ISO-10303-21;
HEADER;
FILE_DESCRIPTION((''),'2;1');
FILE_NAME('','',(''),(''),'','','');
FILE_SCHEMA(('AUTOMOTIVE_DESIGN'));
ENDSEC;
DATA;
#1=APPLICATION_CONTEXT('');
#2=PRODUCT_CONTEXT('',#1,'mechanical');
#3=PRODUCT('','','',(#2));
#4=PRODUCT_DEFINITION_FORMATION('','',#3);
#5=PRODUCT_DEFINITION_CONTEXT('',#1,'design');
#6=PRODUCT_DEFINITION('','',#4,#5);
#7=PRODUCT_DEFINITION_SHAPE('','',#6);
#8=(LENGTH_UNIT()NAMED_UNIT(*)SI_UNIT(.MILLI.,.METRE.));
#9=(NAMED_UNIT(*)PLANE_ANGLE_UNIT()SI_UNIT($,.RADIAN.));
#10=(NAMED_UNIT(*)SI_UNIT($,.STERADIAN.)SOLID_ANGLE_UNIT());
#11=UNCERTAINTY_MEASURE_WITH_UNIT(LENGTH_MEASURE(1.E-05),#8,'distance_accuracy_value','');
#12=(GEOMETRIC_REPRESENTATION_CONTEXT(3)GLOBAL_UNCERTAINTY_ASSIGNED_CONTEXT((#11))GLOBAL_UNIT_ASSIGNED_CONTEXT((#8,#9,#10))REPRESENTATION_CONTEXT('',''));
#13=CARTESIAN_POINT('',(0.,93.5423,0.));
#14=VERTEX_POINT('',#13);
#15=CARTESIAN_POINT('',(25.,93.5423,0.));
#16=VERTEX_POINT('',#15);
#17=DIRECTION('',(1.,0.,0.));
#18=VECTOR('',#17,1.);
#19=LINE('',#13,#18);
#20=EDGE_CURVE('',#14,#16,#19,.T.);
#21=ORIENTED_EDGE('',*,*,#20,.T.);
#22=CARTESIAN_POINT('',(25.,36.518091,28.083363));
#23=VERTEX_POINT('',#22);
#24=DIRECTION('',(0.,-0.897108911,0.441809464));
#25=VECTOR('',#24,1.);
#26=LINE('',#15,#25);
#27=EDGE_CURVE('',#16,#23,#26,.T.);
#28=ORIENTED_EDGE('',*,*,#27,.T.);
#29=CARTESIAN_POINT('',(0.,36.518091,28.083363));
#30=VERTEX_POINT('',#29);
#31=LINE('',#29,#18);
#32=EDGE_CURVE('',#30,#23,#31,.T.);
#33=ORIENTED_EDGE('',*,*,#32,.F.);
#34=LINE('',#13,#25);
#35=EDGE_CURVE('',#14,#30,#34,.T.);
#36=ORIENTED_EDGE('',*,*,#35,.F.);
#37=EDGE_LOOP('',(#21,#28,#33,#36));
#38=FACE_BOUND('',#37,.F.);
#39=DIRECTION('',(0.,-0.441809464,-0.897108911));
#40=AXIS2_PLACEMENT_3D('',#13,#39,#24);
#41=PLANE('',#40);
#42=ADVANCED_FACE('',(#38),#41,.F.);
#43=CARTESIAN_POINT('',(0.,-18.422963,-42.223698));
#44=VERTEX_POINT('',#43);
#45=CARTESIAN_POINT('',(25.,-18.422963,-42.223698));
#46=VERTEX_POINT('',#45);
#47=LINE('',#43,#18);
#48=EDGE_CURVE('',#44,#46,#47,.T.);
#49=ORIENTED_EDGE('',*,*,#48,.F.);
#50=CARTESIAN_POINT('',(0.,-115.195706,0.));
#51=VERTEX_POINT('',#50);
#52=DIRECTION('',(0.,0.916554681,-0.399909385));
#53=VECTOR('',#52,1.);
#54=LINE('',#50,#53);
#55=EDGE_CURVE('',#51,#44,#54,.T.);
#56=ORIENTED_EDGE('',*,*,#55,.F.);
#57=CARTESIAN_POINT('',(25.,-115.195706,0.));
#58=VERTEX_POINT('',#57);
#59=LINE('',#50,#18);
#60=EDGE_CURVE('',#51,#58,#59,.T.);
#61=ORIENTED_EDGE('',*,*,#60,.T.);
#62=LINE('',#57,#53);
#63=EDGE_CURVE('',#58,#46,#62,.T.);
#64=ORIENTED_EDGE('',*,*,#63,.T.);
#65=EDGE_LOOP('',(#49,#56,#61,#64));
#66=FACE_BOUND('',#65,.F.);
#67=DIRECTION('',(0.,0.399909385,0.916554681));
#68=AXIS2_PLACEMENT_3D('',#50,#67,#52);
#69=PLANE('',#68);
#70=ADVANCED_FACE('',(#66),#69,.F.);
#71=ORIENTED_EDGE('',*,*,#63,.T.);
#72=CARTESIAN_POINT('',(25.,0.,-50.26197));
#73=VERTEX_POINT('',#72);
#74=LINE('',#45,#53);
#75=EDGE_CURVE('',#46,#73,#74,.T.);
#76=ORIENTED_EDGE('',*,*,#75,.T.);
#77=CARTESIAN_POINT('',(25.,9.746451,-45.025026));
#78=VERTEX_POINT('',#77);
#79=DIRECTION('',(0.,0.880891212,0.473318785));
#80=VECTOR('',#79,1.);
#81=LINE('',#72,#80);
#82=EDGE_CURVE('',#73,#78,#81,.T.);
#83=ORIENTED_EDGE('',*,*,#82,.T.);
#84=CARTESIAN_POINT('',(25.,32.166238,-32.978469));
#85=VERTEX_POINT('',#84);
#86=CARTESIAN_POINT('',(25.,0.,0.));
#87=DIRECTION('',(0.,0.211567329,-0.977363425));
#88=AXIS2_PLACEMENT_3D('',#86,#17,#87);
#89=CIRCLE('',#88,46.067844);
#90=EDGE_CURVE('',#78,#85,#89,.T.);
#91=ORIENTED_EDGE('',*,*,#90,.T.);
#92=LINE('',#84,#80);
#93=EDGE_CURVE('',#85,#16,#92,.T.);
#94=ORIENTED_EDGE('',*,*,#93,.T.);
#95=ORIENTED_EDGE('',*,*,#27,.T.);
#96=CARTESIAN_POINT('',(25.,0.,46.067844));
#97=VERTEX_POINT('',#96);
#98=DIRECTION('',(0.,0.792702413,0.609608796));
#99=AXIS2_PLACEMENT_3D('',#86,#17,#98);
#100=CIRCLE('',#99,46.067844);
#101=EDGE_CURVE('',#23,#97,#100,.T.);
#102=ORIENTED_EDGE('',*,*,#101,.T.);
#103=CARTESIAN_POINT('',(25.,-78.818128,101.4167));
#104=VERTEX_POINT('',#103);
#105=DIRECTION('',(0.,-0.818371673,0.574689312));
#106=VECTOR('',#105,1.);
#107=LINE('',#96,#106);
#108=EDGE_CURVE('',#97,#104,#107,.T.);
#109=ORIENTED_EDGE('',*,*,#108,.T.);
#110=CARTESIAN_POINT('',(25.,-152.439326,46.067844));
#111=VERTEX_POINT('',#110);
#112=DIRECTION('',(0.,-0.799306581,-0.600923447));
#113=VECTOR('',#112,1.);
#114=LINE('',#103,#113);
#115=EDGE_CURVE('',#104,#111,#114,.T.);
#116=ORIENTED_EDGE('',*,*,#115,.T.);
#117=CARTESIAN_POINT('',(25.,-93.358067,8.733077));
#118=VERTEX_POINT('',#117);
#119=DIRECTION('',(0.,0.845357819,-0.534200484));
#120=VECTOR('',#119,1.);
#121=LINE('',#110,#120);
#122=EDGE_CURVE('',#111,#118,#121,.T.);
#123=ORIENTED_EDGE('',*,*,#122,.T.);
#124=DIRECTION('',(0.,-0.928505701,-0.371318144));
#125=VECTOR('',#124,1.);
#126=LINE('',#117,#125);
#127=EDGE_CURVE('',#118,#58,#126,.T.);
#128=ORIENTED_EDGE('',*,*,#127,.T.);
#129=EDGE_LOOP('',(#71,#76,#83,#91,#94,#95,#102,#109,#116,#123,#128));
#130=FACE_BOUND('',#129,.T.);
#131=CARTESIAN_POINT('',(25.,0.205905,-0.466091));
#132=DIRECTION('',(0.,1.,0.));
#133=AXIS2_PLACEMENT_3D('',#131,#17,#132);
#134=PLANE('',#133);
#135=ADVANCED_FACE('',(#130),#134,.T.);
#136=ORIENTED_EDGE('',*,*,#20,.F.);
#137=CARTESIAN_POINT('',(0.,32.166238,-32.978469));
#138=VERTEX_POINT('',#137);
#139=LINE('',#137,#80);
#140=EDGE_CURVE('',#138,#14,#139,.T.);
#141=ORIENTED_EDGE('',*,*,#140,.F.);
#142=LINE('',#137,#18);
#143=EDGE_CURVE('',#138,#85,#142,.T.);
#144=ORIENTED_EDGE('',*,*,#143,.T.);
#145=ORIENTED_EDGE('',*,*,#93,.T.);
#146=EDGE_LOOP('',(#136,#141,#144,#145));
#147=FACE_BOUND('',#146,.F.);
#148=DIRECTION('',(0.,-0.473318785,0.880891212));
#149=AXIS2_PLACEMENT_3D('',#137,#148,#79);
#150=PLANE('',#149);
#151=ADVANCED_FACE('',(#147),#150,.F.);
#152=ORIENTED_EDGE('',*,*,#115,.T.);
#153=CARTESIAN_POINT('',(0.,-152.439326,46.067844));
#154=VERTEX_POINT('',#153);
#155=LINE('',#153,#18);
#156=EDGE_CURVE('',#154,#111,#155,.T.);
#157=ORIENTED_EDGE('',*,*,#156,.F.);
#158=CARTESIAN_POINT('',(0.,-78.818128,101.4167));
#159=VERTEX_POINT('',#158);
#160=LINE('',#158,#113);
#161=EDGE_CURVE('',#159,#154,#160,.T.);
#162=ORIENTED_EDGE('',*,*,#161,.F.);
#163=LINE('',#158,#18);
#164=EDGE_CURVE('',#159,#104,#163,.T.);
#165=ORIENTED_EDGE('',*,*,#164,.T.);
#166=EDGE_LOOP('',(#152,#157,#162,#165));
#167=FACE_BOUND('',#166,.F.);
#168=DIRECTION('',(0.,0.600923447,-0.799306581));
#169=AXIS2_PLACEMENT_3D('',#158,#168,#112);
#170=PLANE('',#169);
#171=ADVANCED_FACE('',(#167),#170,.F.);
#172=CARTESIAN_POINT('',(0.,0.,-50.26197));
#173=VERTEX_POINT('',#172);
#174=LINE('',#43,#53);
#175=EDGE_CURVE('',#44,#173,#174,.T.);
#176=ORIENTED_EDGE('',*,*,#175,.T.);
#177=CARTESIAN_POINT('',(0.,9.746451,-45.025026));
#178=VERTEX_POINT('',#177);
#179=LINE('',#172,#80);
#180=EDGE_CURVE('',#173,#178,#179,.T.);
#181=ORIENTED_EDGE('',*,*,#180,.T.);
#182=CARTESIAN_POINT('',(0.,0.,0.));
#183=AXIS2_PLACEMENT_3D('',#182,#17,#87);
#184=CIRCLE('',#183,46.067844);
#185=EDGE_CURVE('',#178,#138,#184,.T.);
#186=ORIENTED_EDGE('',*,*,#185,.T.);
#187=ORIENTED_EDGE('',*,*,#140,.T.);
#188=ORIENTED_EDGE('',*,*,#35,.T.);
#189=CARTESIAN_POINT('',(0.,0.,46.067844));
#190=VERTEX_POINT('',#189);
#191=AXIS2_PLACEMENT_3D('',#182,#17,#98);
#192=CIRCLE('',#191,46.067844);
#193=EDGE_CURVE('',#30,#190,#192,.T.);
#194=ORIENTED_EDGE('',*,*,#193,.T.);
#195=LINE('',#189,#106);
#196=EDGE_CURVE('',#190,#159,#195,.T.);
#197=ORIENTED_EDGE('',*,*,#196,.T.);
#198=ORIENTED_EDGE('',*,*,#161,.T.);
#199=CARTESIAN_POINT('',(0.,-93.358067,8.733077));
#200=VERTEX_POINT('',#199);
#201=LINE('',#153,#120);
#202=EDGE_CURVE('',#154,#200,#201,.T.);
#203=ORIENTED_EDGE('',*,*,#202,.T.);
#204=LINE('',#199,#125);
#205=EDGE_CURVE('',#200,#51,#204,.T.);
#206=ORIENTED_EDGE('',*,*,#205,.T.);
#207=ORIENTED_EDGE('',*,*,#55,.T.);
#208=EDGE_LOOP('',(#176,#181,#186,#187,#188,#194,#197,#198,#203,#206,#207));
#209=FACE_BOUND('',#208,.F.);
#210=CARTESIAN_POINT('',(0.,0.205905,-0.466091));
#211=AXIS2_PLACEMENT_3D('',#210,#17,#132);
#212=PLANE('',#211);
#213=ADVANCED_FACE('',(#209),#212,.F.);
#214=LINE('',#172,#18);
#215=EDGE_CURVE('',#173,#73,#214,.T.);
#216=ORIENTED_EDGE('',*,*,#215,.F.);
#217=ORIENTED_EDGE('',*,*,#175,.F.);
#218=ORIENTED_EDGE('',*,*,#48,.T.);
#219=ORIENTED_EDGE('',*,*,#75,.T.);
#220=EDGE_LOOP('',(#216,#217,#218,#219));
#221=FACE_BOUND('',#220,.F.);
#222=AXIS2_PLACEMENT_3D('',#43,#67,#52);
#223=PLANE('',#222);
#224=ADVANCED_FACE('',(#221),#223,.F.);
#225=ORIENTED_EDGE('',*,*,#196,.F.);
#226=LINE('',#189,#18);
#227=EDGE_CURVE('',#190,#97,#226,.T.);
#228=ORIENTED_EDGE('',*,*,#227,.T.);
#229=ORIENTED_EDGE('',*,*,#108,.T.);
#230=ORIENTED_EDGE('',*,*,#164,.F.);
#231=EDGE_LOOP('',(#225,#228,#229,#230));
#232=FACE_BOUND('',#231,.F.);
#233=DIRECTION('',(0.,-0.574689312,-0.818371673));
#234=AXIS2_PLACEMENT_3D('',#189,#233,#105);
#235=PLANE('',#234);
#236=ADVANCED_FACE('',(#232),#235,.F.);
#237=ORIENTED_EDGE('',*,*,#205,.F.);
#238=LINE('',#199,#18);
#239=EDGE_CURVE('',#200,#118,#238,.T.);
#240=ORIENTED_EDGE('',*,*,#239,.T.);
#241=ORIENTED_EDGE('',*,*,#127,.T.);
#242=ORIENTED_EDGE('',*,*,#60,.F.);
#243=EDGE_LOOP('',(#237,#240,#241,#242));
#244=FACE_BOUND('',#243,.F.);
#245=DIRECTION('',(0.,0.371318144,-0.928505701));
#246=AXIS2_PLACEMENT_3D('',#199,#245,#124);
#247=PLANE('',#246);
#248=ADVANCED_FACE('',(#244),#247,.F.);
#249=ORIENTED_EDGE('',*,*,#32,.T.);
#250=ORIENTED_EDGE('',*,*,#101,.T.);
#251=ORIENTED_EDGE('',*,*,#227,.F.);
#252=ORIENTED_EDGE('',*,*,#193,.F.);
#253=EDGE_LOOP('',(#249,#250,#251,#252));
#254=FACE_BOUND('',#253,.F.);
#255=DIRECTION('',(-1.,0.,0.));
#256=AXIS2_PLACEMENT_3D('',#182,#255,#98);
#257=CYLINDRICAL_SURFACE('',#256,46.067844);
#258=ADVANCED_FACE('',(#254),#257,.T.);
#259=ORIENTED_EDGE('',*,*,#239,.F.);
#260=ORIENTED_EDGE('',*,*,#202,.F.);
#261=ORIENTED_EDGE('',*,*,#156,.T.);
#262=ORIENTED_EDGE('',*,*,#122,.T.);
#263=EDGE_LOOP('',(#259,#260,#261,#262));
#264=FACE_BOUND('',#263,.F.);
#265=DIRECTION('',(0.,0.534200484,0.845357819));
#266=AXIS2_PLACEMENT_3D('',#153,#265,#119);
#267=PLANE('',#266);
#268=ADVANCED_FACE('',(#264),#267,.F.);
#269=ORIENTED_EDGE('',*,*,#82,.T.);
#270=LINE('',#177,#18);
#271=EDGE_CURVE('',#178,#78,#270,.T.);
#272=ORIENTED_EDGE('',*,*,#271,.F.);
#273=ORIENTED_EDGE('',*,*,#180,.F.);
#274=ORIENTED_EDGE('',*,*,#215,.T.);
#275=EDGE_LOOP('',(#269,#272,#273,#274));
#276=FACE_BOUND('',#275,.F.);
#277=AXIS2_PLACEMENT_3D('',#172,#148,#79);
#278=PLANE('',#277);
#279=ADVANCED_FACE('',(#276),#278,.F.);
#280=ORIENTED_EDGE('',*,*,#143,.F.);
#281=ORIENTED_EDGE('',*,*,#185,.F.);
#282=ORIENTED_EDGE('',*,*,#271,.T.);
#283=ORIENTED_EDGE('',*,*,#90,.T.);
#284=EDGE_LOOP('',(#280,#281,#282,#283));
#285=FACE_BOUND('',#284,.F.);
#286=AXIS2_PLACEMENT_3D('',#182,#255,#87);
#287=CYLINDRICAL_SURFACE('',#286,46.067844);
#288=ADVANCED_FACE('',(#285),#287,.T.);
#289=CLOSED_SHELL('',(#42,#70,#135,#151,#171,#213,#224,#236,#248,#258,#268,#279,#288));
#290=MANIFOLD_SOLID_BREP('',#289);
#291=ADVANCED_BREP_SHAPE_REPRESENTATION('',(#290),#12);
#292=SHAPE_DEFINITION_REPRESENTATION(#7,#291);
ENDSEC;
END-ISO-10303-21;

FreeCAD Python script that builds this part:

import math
import FreeCAD as App
import Part
import Sketcher

doc = App.newDocument("Part")
body = doc.addObject("PartDesign::Body", "Body")

sketch1 = body.newObject("Sketcher::SketchObject", "Sketch")
sketch1.AttachmentSupport = (doc.getObject("YZ_Plane"), [""])
sketch1.MapMode = "FlatFace"
sketch1.addGeometry([
    Part.LineSegment(App.Vector(-18, -42, 0), App.Vector(0, -50, 0)),
    Part.LineSegment(App.Vector(0, -50, 0), App.Vector(10, -45, 0)),
    Part.ArcOfCircle(Part.Circle(App.Vector(0, 0, 0), App.Vector(0, 0, 1), 46), math.radians(-78), math.radians(-46)),
    Part.LineSegment(App.Vector(32, -33, 0), App.Vector(94, 0, 0)),
    Part.LineSegment(App.Vector(94, 0, 0), App.Vector(37, 28, 0)),
    Part.ArcOfCircle(Part.Circle(App.Vector(0, 0, 0), App.Vector(0, 0, 1), 46), math.radians(38), math.radians(90)),
    Part.LineSegment(App.Vector(0, 46, 0), App.Vector(-79, 101, 0)),
    Part.LineSegment(App.Vector(-79, 101, 0), App.Vector(-152, 46, 0)),
    Part.LineSegment(App.Vector(-152, 46, 0), App.Vector(-93, 9, 0)),
    Part.LineSegment(App.Vector(-93, 9, 0), App.Vector(-115, 0, 0)),
    Part.LineSegment(App.Vector(-115, 0, 0), App.Vector(-18, -42, 0)),
], False)
sketch1.addConstraint([
    Sketcher.Constraint("Coincident", 0, 2, 1, 1),
    Sketcher.Constraint("Coincident", 1, 2, 2, 1),
    Sketcher.Constraint("Coincident", 2, 2, 3, 1),
    Sketcher.Constraint("Coincident", 3, 2, 4, 1),
    Sketcher.Constraint("Coincident", 4, 2, 5, 1),
    Sketcher.Constraint("Coincident", 5, 2, 6, 1),
    Sketcher.Constraint("Coincident", 6, 2, 7, 1),
    Sketcher.Constraint("Coincident", 7, 2, 8, 1),
    Sketcher.Constraint("Coincident", 8, 2, 9, 1),
    Sketcher.Constraint("Coincident", 9, 2, 10, 1),
    Sketcher.Constraint("Coincident", 10, 2, 0, 1),
    Sketcher.Constraint("Coincident", 2, 3, -1, 1),
    Sketcher.Constraint("Coincident", 5, 3, -1, 1),
    Sketcher.Constraint("Equal", 2, 5),
    Sketcher.Constraint("PointOnObject", 0, 2, -2),
    Sketcher.Constraint("PointOnObject", 3, 2, -1),
    Sketcher.Constraint("PointOnObject", 5, 2, -2),
    Sketcher.Constraint("PointOnObject", 9, 2, -1),
    Sketcher.Constraint("Parallel", 1, 3),
    Sketcher.Constraint("Parallel", 0, 10),
    Sketcher.Constraint("Horizontal", 5, 2, 7, 2),
    Sketcher.Constraint("Radius", 2, 46.067844),
    Sketcher.Constraint("DistanceX", -1, 1, 3, 2, 93.5423),
    Sketcher.Constraint("DistanceY", -1, 1, 6, 2, 101.4167),
    Sketcher.Constraint("DistanceY", 10, 2, -1, 1, 42.223698),
    Sketcher.Constraint("DistanceY", 0, 2, 2, 2, 17.283502),
    Sketcher.Constraint("DistanceX", 7, 2, 6, 2, 73.621199),
    Sketcher.Constraint("DistanceX", 10, 2, 2, 2, 50.589201),
    Sketcher.Constraint("Distance", 4, 63.564422),
    Sketcher.Constraint("Distance", 6, 96.310919),
    Sketcher.Constraint("DistanceY", 0, 2, -1, 1, 50.26197),
    Sketcher.Constraint("DistanceX", 7, 2, 8, 2, 59.081259),
    Sketcher.Constraint("Distance", 8, 69.889055),
])
pad1 = body.newObject("PartDesign::Pad", "Pad")
pad1.Profile = sketch1
pad1.Length = 25

doc.recompute()
